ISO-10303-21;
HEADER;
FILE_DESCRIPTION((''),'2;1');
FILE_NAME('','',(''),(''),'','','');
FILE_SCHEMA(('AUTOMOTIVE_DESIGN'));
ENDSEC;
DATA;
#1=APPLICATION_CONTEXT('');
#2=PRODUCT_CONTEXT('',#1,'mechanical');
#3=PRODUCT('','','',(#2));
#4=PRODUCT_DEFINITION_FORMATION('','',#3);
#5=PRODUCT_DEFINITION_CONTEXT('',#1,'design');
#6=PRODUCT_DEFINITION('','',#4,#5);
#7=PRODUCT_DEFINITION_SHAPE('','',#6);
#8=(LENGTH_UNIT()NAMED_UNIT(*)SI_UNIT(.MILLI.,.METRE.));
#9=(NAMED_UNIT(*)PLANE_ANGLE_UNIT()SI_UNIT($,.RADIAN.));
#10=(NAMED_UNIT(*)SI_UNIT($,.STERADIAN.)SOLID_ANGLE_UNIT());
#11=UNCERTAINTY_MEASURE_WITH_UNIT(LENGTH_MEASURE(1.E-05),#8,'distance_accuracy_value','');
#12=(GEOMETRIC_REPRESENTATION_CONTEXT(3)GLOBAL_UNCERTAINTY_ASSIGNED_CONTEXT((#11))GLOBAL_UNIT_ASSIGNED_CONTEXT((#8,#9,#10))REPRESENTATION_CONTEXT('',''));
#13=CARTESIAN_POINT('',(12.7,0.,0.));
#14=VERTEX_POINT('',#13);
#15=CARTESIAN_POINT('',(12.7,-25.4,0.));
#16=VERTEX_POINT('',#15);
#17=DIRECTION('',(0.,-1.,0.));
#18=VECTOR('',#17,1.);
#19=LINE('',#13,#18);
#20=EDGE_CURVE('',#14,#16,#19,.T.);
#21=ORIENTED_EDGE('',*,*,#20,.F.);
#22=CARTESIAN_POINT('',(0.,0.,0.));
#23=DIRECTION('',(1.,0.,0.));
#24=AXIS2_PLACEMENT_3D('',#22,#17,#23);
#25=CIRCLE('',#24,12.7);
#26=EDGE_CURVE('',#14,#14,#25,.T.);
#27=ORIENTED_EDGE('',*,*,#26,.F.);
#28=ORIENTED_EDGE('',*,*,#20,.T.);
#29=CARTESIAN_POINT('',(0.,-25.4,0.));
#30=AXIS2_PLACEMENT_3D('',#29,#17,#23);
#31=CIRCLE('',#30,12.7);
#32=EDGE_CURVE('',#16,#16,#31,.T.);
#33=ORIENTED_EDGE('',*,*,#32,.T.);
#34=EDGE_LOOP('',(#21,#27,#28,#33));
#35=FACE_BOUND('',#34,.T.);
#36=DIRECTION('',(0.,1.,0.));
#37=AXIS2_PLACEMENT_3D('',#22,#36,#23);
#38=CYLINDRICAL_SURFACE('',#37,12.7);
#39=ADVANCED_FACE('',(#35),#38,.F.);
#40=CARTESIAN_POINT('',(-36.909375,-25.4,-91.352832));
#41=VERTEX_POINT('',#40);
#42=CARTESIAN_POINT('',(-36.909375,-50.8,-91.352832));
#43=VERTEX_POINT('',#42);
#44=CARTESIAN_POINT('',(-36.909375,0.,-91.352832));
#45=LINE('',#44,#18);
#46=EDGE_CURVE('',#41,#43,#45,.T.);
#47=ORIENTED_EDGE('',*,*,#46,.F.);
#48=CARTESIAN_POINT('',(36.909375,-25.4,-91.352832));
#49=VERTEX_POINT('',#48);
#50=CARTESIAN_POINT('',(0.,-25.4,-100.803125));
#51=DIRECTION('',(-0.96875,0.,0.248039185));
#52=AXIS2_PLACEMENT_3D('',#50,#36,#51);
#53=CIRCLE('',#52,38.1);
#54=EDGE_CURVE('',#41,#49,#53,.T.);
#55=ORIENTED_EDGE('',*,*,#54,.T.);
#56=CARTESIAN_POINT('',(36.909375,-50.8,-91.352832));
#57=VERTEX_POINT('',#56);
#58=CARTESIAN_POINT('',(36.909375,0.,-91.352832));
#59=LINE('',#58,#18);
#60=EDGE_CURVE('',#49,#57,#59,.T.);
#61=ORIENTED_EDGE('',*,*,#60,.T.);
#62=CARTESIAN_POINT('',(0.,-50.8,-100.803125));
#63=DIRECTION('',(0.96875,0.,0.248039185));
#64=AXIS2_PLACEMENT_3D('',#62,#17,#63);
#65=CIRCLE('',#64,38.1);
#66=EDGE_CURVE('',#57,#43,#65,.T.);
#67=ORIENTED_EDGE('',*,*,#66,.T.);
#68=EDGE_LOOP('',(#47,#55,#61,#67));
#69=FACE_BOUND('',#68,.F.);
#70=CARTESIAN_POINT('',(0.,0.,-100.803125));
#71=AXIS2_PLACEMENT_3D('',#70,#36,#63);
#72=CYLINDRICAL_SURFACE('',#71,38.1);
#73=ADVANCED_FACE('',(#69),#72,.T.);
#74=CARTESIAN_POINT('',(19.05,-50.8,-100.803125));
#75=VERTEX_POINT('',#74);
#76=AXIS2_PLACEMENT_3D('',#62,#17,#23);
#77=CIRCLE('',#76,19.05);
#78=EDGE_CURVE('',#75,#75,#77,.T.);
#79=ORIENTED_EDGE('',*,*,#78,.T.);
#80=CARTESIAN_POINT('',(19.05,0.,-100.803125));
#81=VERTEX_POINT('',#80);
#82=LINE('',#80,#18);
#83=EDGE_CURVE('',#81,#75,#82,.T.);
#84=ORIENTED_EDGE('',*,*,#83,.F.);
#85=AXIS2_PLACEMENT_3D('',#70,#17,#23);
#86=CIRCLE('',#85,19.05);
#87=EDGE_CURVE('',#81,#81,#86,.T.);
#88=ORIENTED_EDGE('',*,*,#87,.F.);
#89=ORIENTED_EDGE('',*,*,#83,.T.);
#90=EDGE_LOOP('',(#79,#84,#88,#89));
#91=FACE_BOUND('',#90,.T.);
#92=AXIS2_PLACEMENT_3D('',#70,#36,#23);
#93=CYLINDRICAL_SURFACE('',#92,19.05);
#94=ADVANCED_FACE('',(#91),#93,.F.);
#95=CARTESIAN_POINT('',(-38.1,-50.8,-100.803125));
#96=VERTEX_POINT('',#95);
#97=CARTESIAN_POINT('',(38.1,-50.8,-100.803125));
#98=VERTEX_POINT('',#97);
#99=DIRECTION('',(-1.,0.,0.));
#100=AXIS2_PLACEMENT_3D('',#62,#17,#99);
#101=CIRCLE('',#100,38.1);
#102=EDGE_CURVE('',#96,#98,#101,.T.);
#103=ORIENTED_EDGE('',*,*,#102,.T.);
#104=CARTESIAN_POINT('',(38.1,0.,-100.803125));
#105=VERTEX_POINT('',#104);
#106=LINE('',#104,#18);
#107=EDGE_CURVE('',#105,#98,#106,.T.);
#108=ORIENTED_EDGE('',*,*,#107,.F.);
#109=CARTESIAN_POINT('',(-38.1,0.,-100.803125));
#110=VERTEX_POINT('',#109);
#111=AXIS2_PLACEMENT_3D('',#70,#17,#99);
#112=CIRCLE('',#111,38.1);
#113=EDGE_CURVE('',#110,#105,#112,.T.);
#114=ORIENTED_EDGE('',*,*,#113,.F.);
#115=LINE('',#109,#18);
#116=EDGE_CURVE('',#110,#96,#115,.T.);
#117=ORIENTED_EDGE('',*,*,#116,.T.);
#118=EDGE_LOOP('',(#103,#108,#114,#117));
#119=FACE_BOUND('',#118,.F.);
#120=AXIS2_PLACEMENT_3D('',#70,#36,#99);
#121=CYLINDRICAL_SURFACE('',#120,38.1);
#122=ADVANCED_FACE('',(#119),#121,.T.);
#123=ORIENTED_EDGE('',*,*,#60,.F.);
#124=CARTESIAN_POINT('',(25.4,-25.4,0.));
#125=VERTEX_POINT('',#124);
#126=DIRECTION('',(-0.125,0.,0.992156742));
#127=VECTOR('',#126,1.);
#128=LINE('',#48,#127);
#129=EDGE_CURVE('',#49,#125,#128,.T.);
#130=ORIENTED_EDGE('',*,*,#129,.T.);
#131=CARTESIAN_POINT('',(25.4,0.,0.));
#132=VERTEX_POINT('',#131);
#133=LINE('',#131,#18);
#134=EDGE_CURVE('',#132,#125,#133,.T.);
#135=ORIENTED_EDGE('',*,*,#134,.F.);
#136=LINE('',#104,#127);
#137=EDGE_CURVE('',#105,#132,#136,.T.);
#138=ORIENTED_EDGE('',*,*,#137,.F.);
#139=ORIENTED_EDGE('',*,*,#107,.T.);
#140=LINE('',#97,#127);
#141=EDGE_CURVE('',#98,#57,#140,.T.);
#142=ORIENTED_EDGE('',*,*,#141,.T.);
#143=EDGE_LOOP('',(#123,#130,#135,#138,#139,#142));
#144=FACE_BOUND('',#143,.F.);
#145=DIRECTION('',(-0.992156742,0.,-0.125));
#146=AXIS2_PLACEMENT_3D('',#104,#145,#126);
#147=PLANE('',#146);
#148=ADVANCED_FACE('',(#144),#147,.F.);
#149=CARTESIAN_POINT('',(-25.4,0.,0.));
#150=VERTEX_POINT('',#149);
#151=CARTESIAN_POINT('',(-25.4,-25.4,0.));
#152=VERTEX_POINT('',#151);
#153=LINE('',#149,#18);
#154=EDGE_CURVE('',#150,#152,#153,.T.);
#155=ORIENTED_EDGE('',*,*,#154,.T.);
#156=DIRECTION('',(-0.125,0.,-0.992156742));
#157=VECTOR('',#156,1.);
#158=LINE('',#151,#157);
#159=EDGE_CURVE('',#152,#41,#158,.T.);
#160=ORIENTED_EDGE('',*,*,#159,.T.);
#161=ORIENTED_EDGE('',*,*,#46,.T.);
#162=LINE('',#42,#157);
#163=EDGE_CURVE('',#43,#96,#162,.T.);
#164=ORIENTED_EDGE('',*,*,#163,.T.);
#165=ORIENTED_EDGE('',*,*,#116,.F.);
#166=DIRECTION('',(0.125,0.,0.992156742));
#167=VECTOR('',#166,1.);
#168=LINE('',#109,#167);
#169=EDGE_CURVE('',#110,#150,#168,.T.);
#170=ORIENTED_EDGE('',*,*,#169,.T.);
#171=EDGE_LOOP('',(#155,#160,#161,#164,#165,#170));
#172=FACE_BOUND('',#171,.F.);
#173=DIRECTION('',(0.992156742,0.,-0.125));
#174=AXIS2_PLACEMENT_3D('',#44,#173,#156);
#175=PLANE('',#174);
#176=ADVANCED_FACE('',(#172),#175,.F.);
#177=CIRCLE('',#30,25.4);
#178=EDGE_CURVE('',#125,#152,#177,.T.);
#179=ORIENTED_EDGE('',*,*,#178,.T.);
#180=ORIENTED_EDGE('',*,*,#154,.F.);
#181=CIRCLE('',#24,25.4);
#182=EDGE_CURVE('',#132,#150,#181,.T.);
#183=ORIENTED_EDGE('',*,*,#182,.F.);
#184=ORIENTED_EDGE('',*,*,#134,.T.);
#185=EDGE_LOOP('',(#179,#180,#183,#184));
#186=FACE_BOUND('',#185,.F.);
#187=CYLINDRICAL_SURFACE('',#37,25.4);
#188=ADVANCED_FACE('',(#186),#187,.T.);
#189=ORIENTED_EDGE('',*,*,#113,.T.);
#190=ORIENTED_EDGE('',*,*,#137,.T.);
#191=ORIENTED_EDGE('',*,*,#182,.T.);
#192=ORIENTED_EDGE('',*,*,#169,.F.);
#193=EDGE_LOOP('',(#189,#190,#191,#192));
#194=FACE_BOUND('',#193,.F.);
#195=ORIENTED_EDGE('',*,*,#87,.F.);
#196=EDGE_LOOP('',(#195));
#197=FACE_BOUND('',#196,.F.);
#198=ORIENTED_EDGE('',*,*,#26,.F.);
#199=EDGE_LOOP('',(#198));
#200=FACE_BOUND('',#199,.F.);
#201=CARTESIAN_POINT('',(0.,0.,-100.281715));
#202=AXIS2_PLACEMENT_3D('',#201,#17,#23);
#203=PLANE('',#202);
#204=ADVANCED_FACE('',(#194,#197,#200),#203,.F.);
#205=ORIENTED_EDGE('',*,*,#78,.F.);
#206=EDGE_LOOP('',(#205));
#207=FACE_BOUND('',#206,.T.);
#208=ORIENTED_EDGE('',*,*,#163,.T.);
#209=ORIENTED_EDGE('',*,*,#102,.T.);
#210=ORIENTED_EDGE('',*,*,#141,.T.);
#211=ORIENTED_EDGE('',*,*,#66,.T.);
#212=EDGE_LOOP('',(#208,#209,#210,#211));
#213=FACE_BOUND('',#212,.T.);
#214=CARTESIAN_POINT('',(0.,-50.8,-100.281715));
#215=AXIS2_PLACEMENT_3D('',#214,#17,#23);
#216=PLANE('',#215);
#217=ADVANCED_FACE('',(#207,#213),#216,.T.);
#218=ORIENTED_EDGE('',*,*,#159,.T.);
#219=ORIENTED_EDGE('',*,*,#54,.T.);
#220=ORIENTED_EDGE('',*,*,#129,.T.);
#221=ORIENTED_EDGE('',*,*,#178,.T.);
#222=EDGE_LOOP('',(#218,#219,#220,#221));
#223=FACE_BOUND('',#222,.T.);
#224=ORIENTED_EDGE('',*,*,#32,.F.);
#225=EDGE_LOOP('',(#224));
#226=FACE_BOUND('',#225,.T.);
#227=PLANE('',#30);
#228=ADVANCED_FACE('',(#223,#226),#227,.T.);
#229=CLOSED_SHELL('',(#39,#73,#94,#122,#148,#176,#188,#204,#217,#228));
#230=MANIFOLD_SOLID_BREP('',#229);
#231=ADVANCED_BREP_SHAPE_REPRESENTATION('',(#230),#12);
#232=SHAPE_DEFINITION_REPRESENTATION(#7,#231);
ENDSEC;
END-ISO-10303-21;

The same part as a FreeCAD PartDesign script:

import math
import FreeCAD as App
import Part
import Sketcher

V = App.Vector
Q = App.Units.Quantity

doc = App.newDocument("Part")
body = doc.addObject("PartDesign::Body", "Body")

# Sketch on XZ plane
sketch1 = doc.addObject("Sketcher::SketchObject", "Sketch")
body.addObject(sketch1)
sketch1.AttachmentSupport = (doc.XZ_Plane, [""])
sketch1.MapMode = "FlatFace"
sketch1.addGeometry([
    Part.ArcOfCircle(Part.Circle(V(0, 0, 0), V(0, 0, 1), 25), math.radians(0), math.radians(180)),  # 0
    Part.LineSegment(V(-25, 0, 0), V(-37, -91, 0)),  # 1
    Part.ArcOfCircle(Part.Circle(V(0, -101, 0), V(0, 0, 1), 38), math.radians(14), math.radians(166)),  # 2
    Part.LineSegment(V(37, -91, 0), V(25, 0, 0)),  # 3
    Part.Circle(V(0, 0, 0), V(0, 0, 1), 13),  # 4
], False)
sketch1.addConstraint([
    Sketcher.Constraint("Coincident", 0, 2, 1, 1),
    Sketcher.Constraint("Coincident", 1, 2, 2, 2),
    Sketcher.Constraint("Coincident", 2, 1, 3, 1),
    Sketcher.Constraint("Coincident", 3, 2, 0, 1),
    Sketcher.Constraint("Coincident", 0, 3, -1, 1),
    Sketcher.Constraint("Coincident", 4, 3, -1, 1),
    Sketcher.Constraint("Symmetric", 1, 2, 2, 1, -2),
    Sketcher.Constraint("PointOnObject", 0, 2, -1),
    Sketcher.Constraint("PointOnObject", 3, 2, -1),
    Sketcher.Constraint("Diameter", 4, Q("1 in")),
    Sketcher.Constraint("Radius", 0, Q("1 in")),
    Sketcher.Constraint("Radius", 2, Q("1.5 in")),
    Sketcher.Constraint("Distance", 1, Q("3.625 in")),
    Sketcher.Constraint("DistanceX", 1, 2, -1, 1, Q("1.453125 in")),
])
pad1 = doc.addObject("PartDesign::Pad", "Pad")
body.addObject(pad1)
pad1.Profile = sketch1
pad1.Length = Q("1 in")

# Sketch on XZ plane
sketch2 = doc.addObject("Sketcher::SketchObject", "Sketch001")
body.addObject(sketch2)
sketch2.AttachmentSupport = (doc.XZ_Plane, [""])
sketch2.MapMode = "FlatFace"
sketch2.addGeometry([
    Part.LineSegment(V(38, -101, 0), V(37, -91, 0)),  # 0
    Part.ArcOfCircle(Part.Circle(V(0, -101, 0), V(0, 0, 1), 38), math.radians(14), math.radians(166)),  # 1
    Part.LineSegment(V(-37, -91, 0), V(-38, -101, 0)),  # 2
    Part.ArcOfCircle(Part.Circle(V(0, -101, 0), V(0, 0, 1), 38), math.radians(180), math.radians(360)),  # 3
    Part.Circle(V(0, -101, 0), V(0, 0, 1), 19),  # 4
], False)
sketch2.addConstraint([
    Sketcher.Constraint("Coincident", 0, 2, 1, 1),
    Sketcher.Constraint("Coincident", 1, 2, 2, 1),
    Sketcher.Constraint("Coincident", 2, 2, 3, 1),
    Sketcher.Constraint("Coincident", 3, 2, 0, 1),
    Sketcher.Constraint("Coincident", 3, 3, 1, 3),
    Sketcher.Constraint("Coincident", 4, 3, 1, 3),
    Sketcher.Constraint("Equal", 1, 3),
    Sketcher.Constraint("Symmetric", 0, 2, 1, 2, -2),
    Sketcher.Constraint("Horizontal", 4, 3, 2, 2),
    Sketcher.Constraint("Horizontal", 2, 2, 3, 2),
    Sketcher.Constraint("Diameter", 4, Q("1.5 in")),
    Sketcher.Constraint("Radius", 1, Q("1.5 in")),
    Sketcher.Constraint("Distance", 0, Q("0.375 in")),
    Sketcher.Constraint("DistanceY", 0, 2, -1, 1, 91.352832),
])
pad2 = doc.addObject("PartDesign::Pad", "Pad001")
body.addObject(pad2)
pad2.Profile = sketch2
pad2.Length = Q("2 in")

doc.recompute()
